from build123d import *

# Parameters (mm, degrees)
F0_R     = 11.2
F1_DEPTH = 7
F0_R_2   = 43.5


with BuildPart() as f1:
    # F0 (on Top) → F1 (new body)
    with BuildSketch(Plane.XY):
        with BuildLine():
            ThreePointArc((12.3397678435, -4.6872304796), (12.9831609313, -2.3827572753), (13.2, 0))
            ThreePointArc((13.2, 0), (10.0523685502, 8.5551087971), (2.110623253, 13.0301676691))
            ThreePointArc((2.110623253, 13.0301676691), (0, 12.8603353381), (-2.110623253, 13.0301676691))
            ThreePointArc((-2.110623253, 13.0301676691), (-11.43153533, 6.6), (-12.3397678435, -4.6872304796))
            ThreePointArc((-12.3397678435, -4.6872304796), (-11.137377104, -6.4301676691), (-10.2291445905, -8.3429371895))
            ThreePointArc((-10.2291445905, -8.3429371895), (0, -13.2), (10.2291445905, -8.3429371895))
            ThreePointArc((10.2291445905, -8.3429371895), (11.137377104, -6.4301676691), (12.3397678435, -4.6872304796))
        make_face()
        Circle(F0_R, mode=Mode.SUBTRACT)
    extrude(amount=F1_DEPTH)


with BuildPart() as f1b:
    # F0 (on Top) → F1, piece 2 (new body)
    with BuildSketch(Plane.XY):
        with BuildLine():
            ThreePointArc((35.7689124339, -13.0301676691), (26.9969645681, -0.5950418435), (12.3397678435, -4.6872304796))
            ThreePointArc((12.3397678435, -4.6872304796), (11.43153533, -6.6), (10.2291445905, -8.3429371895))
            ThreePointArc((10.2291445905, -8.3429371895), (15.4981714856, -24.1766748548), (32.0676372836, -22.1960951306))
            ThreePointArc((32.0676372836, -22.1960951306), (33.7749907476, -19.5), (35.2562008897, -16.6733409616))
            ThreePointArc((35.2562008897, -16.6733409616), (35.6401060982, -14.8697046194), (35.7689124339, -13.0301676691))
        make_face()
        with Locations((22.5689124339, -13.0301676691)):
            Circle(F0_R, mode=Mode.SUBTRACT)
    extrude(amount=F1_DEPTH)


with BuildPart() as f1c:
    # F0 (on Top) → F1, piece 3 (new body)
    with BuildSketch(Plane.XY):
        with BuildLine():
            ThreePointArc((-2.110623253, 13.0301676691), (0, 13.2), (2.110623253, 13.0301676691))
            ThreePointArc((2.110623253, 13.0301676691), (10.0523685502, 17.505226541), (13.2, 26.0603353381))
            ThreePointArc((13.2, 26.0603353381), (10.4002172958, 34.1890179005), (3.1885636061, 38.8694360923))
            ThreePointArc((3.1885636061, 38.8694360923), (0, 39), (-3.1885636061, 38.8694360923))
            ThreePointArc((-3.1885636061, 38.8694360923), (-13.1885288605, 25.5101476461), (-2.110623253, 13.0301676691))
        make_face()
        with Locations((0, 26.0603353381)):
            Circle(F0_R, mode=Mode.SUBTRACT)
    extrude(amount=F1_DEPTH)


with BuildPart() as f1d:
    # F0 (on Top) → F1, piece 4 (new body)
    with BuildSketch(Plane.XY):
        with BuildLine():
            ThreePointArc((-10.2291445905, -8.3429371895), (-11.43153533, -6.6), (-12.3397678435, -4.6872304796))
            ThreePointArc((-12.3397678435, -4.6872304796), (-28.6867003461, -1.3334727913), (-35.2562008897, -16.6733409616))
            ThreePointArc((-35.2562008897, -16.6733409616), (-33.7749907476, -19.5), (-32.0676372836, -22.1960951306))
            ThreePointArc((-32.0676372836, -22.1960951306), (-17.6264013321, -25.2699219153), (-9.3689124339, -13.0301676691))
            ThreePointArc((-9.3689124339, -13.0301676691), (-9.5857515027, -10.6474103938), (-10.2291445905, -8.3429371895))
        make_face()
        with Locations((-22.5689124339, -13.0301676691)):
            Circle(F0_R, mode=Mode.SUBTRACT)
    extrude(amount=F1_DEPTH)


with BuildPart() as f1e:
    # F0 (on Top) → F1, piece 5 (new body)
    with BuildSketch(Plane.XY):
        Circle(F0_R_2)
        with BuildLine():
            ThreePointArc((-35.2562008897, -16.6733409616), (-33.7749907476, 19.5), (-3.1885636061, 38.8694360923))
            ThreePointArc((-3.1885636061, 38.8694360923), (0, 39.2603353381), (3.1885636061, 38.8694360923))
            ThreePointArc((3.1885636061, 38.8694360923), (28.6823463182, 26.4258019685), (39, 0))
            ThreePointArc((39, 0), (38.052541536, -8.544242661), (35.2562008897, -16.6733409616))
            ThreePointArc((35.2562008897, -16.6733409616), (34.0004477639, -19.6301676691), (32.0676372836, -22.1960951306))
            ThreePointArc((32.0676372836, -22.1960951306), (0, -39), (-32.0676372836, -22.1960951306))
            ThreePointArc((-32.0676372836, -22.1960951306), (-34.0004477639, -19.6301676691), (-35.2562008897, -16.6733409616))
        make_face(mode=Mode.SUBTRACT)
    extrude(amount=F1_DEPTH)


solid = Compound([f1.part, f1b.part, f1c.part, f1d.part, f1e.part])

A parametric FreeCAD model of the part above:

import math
import FreeCAD as App
import Part
import Sketcher

V = App.Vector
Q = App.Units.Quantity

doc = App.newDocument("Part")
params = doc.addObject("Spreadsheet::Sheet", "Params")
for row, (alias, value) in enumerate([
    ("sketch1_diameter", "22.4 mm"),
    ("sketch1_radius", "13.2 mm"),
    ("pad1_length", "7 mm"),
    ("sketch2_radius", "39 mm"),
    ("sketch2_diameter", "22.4 mm"),
    ("sketch2_radius2", "13.2 mm"),
    ("pad2_length", "7 mm"),
    ("sketch3_radius", "39 mm"),
    ("sketch3_diameter", "22.4 mm"),
    ("sketch3_radius2", "13.2 mm"),
    ("pad3_length", "7 mm"),
    ("sketch4_radius", "39 mm"),
    ("sketch4_diameter", "22.4 mm"),
    ("sketch4_radius2", "13.2 mm"),
    ("pad4_length", "7 mm"),
    ("sketch5_diameter", "87 mm"),
    ("sketch5_radius", "39 mm"),
    ("sketch5_radius2", "13.2 mm"),
    ("pad5_length", "7 mm"),
], start=1):
    params.set(f"A{row}", alias)
    params.set(f"B{row}", "=" + value)
    params.setAlias(f"B{row}", alias)

body = doc.addObject("PartDesign::Body", "Body")

sketch1 = body.newObject("Sketcher::SketchObject", "Sketch")
sketch1.AttachmentSupport = (doc.getObject("XY_Plane"), [""])
sketch1.MapMode = "FlatFace"
sketch1.addGeometry(Part.ArcOfCircle(Part.Circle(V(0, 0, 0), V(0, 0, 1), 13.2), math.radians(-21), math.radians(0)), False)
sketch1.addGeometry(Part.ArcOfCircle(Part.Circle(V(0, 0, 0), V(0, 0, 1), 13.2), math.radians(0), math.radians(81)), False)
sketch1.addGeometry(Part.ArcOfCircle(Part.Circle(V(0, 26.1, 0), V(0, 0, 1), 13.2), math.radians(-99.2), math.radians(-80.8)), False)
sketch1.addGeometry(Part.ArcOfCircle(Part.Circle(V(0, 0, 0), V(0, 0, 1), 13.2), math.radians(99), math.radians(201)), False)
sketch1.addGeometry(Part.ArcOfCircle(Part.Circle(V(-22.6, -13, 0), V(0, 0, 1), 13.2), math.radians(20.8), math.radians(39.2)), False)
sketch1.addGeometry(Part.ArcOfCircle(Part.Circle(V(0, 0, 0), V(0, 0, 1), 13.2), math.radians(-141), math.radians(-39)), False)
sketch1.addGeometry(Part.ArcOfCircle(Part.Circle(V(22.6, -13, 0), V(0, 0, 1), 13.2), math.radians(140.8), math.radians(159.2)), False)
sketch1.addGeometry(Part.Circle(V(0, 0, 0), V(0, 0, 1), 11.2), False)
sketch1.addConstraint(Sketcher.Constraint("Tangent", 0, 2, 1, 1))
sketch1.addConstraint(Sketcher.Constraint("Coincident", 1, 2, 2, 2))
sketch1.addConstraint(Sketcher.Constraint("Coincident", 2, 1, 3, 1))
sketch1.addConstraint(Sketcher.Constraint("Coincident", 3, 2, 4, 2))
sketch1.addConstraint(Sketcher.Constraint("Coincident", 4, 1, 5, 1))
sketch1.addConstraint(Sketcher.Constraint("Coincident", 5, 2, 6, 2))
sketch1.addConstraint(Sketcher.Constraint("Coincident", 6, 1, 0, 1))
sketch1.addConstraint(Sketcher.Constraint("Coincident", 0, 3, -1, 1))
sketch1.addConstraint(Sketcher.Constraint("Coincident", 3, 3, -1, 1))
sketch1.addConstraint(Sketcher.Constraint("Coincident", 5, 3, -1, 1))
sketch1.addConstraint(Sketcher.Constraint("Coincident", 7, 3, -1, 1))
sketch1.addConstraint(Sketcher.Constraint("Equal", 0, 1))
sketch1.addConstraint(Sketcher.Constraint("Equal", 1, 2))
sketch1.addConstraint(Sketcher.Constraint("Equal", 2, 3))
sketch1.addConstraint(Sketcher.Constraint("Equal", 3, 4))
sketch1.addConstraint(Sketcher.Constraint("Equal", 4, 5))
sketch1.addConstraint(Sketcher.Constraint("Equal", 5, 6))
sketch1.addConstraint(Sketcher.Constraint("Symmetric", 4, 3, 6, 3, -2))
sketch1.addConstraint(Sketcher.Constraint("PointOnObject", 2, 3, -2))
sketch1.addConstraint(Sketcher.Constraint("PointOnObject", 0, 2, -1))
sketch1.addConstraint(Sketcher.Constraint("Diameter", 7, Q("22.4 mm")))
sketch1.addConstraint(Sketcher.Constraint("Radius", 0, Q("13.2 mm")))
sketch1.addConstraint(Sketcher.Constraint("DistanceY", 3, 2, -1, 1, Q("4.68723 mm")))
sketch1.addConstraint(Sketcher.Constraint("DistanceY", -1, 1, 2, 3, Q("26.060335 mm")))
sketch1.addConstraint(Sketcher.Constraint("DistanceX", 4, 3, -1, 1, Q("22.568912 mm")))
sketch1.setExpression("Constraints[20]", "Params.sketch1_diameter")
sketch1.setExpression("Constraints[21]", "Params.sketch1_radius")
pad1 = body.newObject("PartDesign::Pad", "Pad")
pad1.Profile = sketch1
pad1.setExpression("Length", "Params.pad1_length")
body2 = doc.addObject("PartDesign::Body", "Body001")

sketch2 = body2.newObject("Sketcher::SketchObject", "Sketch001")
sketch2.AttachmentSupport = (doc.getObject("XY_Plane001"), [""])
sketch2.MapMode = "FlatFace"
sketch2.addGeometry(Part.ArcOfCircle(Part.Circle(V(22.6, -13, 0), V(0, 0, 1), 13.2), math.radians(0), math.radians(141)), False)
sketch2.addGeometry(Part.ArcOfCircle(Part.Circle(V(0, 0, 0), V(0, 0, 1), 13.2), math.radians(-39.2), math.radians(-20.8)), False)
sketch2.addGeometry(Part.ArcOfCircle(Part.Circle(V(22.6, -13, 0), V(0, 0, 1), 13.2), math.radians(159), math.radians(316)), False)
sketch2.addGeometry(Part.ArcOfCircle(Part.Circle(V(0, 0, 0), V(0, 0, 1), 39), math.radians(-34.69), math.radians(-25.31)), False)
sketch2.addGeometry(Part.ArcOfCircle(Part.Circle(V(22.6, -13, 0), V(0, 0, 1), 13.2), math.radians(-16.02), math.radians(0)), False)
sketch2.addGeometry(Part.Circle(V(22.6, -13, 0), V(0, 0, 1), 11.2), False)
sketch2.addConstraint(Sketcher.Constraint("Coincident", 0, 2, 1, 2))
sketch2.addConstraint(Sketcher.Constraint("Coincident", 1, 1, 2, 1))
sketch2.addConstraint(Sketcher.Constraint("Coincident", 2, 2, 3, 1))
sketch2.addConstraint(Sketcher.Constraint("Coincident", 3, 2, 4, 1))
sketch2.addConstraint(Sketcher.Constraint("Tangent", 4, 2, 0, 1))
sketch2.addConstraint(Sketcher.Constraint("Coincident", 1, 3, -1, 1))
sketch2.addConstraint(Sketcher.Constraint("Coincident", 3, 3, -1, 1))
sketch2.addConstraint(Sketcher.Constraint("Coincident", 2, 3, 0, 3))
sketch2.addConstraint(Sketcher.Constraint("Coincident", 5, 3, 0, 3))
sketch2.addConstraint(Sketcher.Constraint("Equal", 0, 1))
sketch2.addConstraint(Sketcher.Constraint("Equal", 1, 2))
sketch2.addConstraint(Sketcher.Constraint("Equal", 2, 4))
sketch2.addConstraint(Sketcher.Constraint("Horizontal", 5, 3, 4, 2))
sketch2.addConstraint(Sketcher.Constraint("Radius", 3, Q("39 mm")))
sketch2.addConstraint(Sketcher.Constraint("Diameter", 5, Q("22.4 mm")))
sketch2.addConstraint(Sketcher.Constraint("Radius", 0, Q("13.2 mm")))
sketch2.addConstraint(Sketcher.Constraint("DistanceX", -1, 1, 3, 2, Q("35.256201 mm")))
sketch2.addConstraint(Sketcher.Constraint("DistanceY", 0, 2, -1, 1, Q("4.68723 mm")))
sketch2.setExpression("Constraints[13]", "Params.sketch2_radius")
sketch2.setExpression("Constraints[14]", "Params.sketch2_diameter")
sketch2.setExpression("Constraints[15]", "Params.sketch2_radius2")
pad2 = body2.newObject("PartDesign::Pad", "Pad001")
pad2.Profile = sketch2
pad2.setExpression("Length", "Params.pad2_length")
body3 = doc.addObject("PartDesign::Body", "Body002")

sketch3 = body3.newObject("Sketcher::SketchObject", "Sketch002")
sketch3.AttachmentSupport = (doc.getObject("XY_Plane002"), [""])
sketch3.MapMode = "FlatFace"
sketch3.addGeometry(Part.ArcOfCircle(Part.Circle(V(0, 0, 0), V(0, 0, 1), 13.2), math.radians(80.8), math.radians(99.2)), False)
sketch3.addGeometry(Part.ArcOfCircle(Part.Circle(V(0, 26.1, 0), V(0, 0, 1), 13.2), math.radians(-81), math.radians(0)), False)
sketch3.addGeometry(Part.ArcOfCircle(Part.Circle(V(0, 26.1, 0), V(0, 0, 1), 13.2), math.radians(0), math.radians(76)), False)
sketch3.addGeometry(Part.ArcOfCircle(Part.Circle(V(0, 0, 0), V(0, 0, 1), 39), math.radians(85.31), math.radians(94.69)), False)
sketch3.addGeometry(Part.ArcOfCircle(Part.Circle(V(0, 26.1, 0), V(0, 0, 1), 13.2), math.radians(104), math.radians(261)), False)
sketch3.addGeometry(Part.Circle(V(0, 26.1, 0), V(0, 0, 1), 11.2), False)
sketch3.addConstraint(Sketcher.Constraint("Coincident", 0, 1, 1, 1))
sketch3.addConstraint(Sketcher.Constraint("Tangent", 1, 2, 2, 1))
sketch3.addConstraint(Sketcher.Constraint("Coincident", 2, 2, 3, 1))
sketch3.addConstraint(Sketcher.Constraint("Coincident", 3, 2, 4, 1))
sketch3.addConstraint(Sketcher.Constraint("Coincident", 4, 2, 0, 2))
sketch3.addConstraint(Sketcher.Constraint("Coincident", 0, 3, -1, 1))
sketch3.addConstraint(Sketcher.Constraint("Coincident", 3, 3, -1, 1))
sketch3.addConstraint(Sketcher.Constraint("Coincident", 4, 3, 1, 3))
sketch3.addConstraint(Sketcher.Constraint("Coincident", 5, 3, 1, 3))
sketch3.addConstraint(Sketcher.Constraint("Equal", 0, 1))
sketch3.addConstraint(Sketcher.Constraint("Equal", 1, 2))
sketch3.addConstraint(Sketcher.Constraint("Equal", 2, 4))
sketch3.addConstraint(Sketcher.Constraint("PointOnObject", 1, 3, -2))
sketch3.addConstraint(Sketcher.Constraint("Horizontal", 5, 3, 1, 2))
sketch3.addConstraint(Sketcher.Constraint("Radius", 3, Q("39 mm")))
sketch3.addConstraint(Sketcher.Constraint("Diameter", 5, Q("22.4 mm")))
sketch3.addConstraint(Sketcher.Constraint("Radius", 0, Q("13.2 mm")))
sketch3.addConstraint(Sketcher.Constraint("DistanceY", 1, 3, 2, 2, Q("12.809101 mm")))
sketch3.setExpression("Constraints[14]", "Params.sketch3_radius")
sketch3.setExpression("Constraints[15]", "Params.sketch3_diameter")
sketch3.setExpression("Constraints[16]", "Params.sketch3_radius2")
pad3 = body3.newObject("PartDesign::Pad", "Pad002")
pad3.Profile = sketch3
pad3.setExpression("Length", "Params.pad3_length")
body4 = doc.addObject("PartDesign::Body", "Body003")

sketch4 = body4.newObject("Sketcher::SketchObject", "Sketch003")
sketch4.AttachmentSupport = (doc.getObject("XY_Plane003"), [""])
sketch4.MapMode = "FlatFace"
sketch4.addGeometry(Part.ArcOfCircle(Part.Circle(V(0, 0, 0), V(0, 0, 1), 13.2), math.radians(-159.2), math.radians(-140.8)), False)
sketch4.addGeometry(Part.ArcOfCircle(Part.Circle(V(-22.6, -13, 0), V(0, 0, 1), 13.2), math.radians(39), math.radians(196)), False)
sketch4.addGeometry(Part.ArcOfCircle(Part.Circle(V(0, 0, 0), V(0, 0, 1), 39), math.radians(-154.69), math.radians(-145.31)), False)
sketch4.addGeometry(Part.ArcOfCircle(Part.Circle(V(-22.6, -13, 0), V(0, 0, 1), 13.2), math.radians(-136), math.radians(0)), False)
sketch4.addGeometry(Part.ArcOfCircle(Part.Circle(V(-22.6, -13, 0), V(0, 0, 1), 13.2), math.radians(0), math.radians(21)), False)
sketch4.addGeometry(Part.Circle(V(-22.6, -13, 0), V(0, 0, 1), 11.2), False)
sketch4.addConstraint(Sketcher.Constraint("Coincident", 0, 1, 1, 1))
sketch4.addConstraint(Sketcher.Constraint("Coincident", 1, 2, 2, 1))
sketch4.addConstraint(Sketcher.Constraint("Coincident", 2, 2, 3, 1))
sketch4.addConstraint(Sketcher.Constraint("Tangent", 3, 2, 4, 1))
sketch4.addConstraint(Sketcher.Constraint("Coincident", 4, 2, 0, 2))
sketch4.addConstraint(Sketcher.Constraint("Coincident", 0, 3, -1, 1))
sketch4.addConstraint(Sketcher.Constraint("Coincident", 2, 3, -1, 1))
sketch4.addConstraint(Sketcher.Constraint("Coincident", 3, 3, 1, 3))
sketch4.addConstraint(Sketcher.Constraint("Coincident", 5, 3, 1, 3))
sketch4.addConstraint(Sketcher.Constraint("Equal", 0, 1))
sketch4.addConstraint(Sketcher.Constraint("Equal", 1, 3))
sketch4.addConstraint(Sketcher.Constraint("Equal", 3, 4))
sketch4.addConstraint(Sketcher.Constraint("Horizontal", 5, 3, 3, 2))
sketch4.addConstraint(Sketcher.Constraint("Radius", 2, Q("39 mm")))
sketch4.addConstraint(Sketcher.Constraint("Diameter", 5, Q("22.4 mm")))
sketch4.addConstraint(Sketcher.Constraint("Radius", 0, Q("13.2 mm")))
sketch4.addConstraint(Sketcher.Constraint("DistanceX", 1, 2, -1, 1, Q("35.256201 mm")))
sketch4.addConstraint(Sketcher.Constraint("DistanceY", 0, 1, -1, 1, Q("4.68723 mm")))
sketch4.setExpression("Constraints[13]", "Params.sketch4_radius")
sketch4.setExpression("Constraints[14]", "Params.sketch4_diameter")
sketch4.setExpression("Constraints[15]", "Params.sketch4_radius2")
pad4 = body4.newObject("PartDesign::Pad", "Pad003")
pad4.Profile = sketch4
pad4.setExpression("Length", "Params.pad4_length")
body5 = doc.addObject("PartDesign::Body", "Body004")

sketch5 = body5.newObject("Sketcher::SketchObject", "Sketch004")
sketch5.AttachmentSupport = (doc.getObject("XY_Plane004"), [""])
sketch5.MapMode = "FlatFace"
sketch5.addGeometry(Part.Circle(V(0, 0, 0), V(0, 0, 1), 44), False)
sketch5.addGeometry(Part.ArcOfCircle(Part.Circle(V(-23, -13, 0), V(0, 0, 1), 13), math.radians(-164), math.radians(-136)), False)
sketch5.addGeometry(Part.ArcOfCircle(Part.Circle(V(0, 0, 0), V(0, 0, 1), 39), math.radians(95), math.radians(205)), False)
sketch5.addGeometry(Part.ArcOfCircle(Part.Circle(V(0, 26, 0), V(0, 0, 1), 13), math.radians(76), math.radians(104)), False)
sketch5.addGeometry(Part.ArcOfCircle(Part.Circle(V(0, 0, 0), V(0, 0, 1), 39), math.radians(0), math.radians(85)), False)
sketch5.addGeometry(Part.ArcOfCircle(Part.Circle(V(0, 0, 0), V(0, 0, 1), 39), math.radians(-25), math.radians(0)), False)
sketch5.addGeometry(Part.ArcOfCircle(Part.Circle(V(23, -13, 0), V(0, 0, 1), 13), math.radians(-44), math.radians(-16)), False)
sketch5.addGeometry(Part.ArcOfCircle(Part.Circle(V(0, 0, 0), V(0, 0, 1), 39), math.radians(-145), math.radians(-35)), False)
sketch5.addConstraint(Sketcher.Constraint("Coincident", 1, 1, 2, 2))
sketch5.addConstraint(Sketcher.Constraint("Coincident", 2, 1, 3, 2))
sketch5.addConstraint(Sketcher.Constraint("Coincident", 3, 1, 4, 2))
sketch5.addConstraint(Sketcher.Constraint("Tangent", 4, 1, 5, 2))
sketch5.addConstraint(Sketcher.Constraint("Coincident", 5, 1, 6, 2))
sketch5.addConstraint(Sketcher.Constraint("Coincident", 6, 1, 7, 2))
sketch5.addConstraint(Sketcher.Constraint("Coincident", 7, 1, 1, 2))
sketch5.addConstraint(Sketcher.Constraint("Coincident", 0, 3, -1, 1))
sketch5.addConstraint(Sketcher.Constraint("Coincident", 2, 3, -1, 1))
sketch5.addConstraint(Sketcher.Constraint("Coincident", 4, 3, -1, 1))
sketch5.addConstraint(Sketcher.Constraint("Coincident", 7, 3, -1, 1))
sketch5.addConstraint(Sketcher.Constraint("Equal", 1, 3))
sketch5.addConstraint(Sketcher.Constraint("Equal", 2, 4))
sketch5.addConstraint(Sketcher.Constraint("Equal", 4, 5))
sketch5.addConstraint(Sketcher.Constraint("Equal", 3, 6))
sketch5.addConstraint(Sketcher.Constraint("Equal", 5, 7))
sketch5.addConstraint(Sketcher.Constraint("Symmetric", 1, 3, 6, 3, -2))
sketch5.addConstraint(Sketcher.Constraint("PointOnObject", 3, 3, -2))
sketch5.addConstraint(Sketcher.Constraint("PointOnObject", 4, 1, -1))
sketch5.addConstraint(Sketcher.Constraint("Diameter", 0, Q("87 mm")))
sketch5.addConstraint(Sketcher.Constraint("Radius", 2, Q("39 mm")))
sketch5.addConstraint(Sketcher.Constraint("Radius", 1, Q("13.2 mm")))
sketch5.addConstraint(Sketcher.Constraint("DistanceX", 1, 1, -1, 1, Q("35.256201 mm")))
sketch5.addConstraint(Sketcher.Constraint("DistanceY", 3, 3, 2, 1, Q("12.809101 mm")))
sketch5.addConstraint(Sketcher.Constraint("DistanceX", 1, 1, 1, 3, Q("12.687288 mm")))
sketch5.setExpression("Constraints[19]", "Params.sketch5_diameter")
sketch5.setExpression("Constraints[20]", "Params.sketch5_radius")
sketch5.setExpression("Constraints[21]", "Params.sketch5_radius2")
pad5 = body5.newObject("PartDesign::Pad", "Pad004")
pad5.Profile = sketch5
pad5.setExpression("Length", "Params.pad5_length")

doc.recompute()
